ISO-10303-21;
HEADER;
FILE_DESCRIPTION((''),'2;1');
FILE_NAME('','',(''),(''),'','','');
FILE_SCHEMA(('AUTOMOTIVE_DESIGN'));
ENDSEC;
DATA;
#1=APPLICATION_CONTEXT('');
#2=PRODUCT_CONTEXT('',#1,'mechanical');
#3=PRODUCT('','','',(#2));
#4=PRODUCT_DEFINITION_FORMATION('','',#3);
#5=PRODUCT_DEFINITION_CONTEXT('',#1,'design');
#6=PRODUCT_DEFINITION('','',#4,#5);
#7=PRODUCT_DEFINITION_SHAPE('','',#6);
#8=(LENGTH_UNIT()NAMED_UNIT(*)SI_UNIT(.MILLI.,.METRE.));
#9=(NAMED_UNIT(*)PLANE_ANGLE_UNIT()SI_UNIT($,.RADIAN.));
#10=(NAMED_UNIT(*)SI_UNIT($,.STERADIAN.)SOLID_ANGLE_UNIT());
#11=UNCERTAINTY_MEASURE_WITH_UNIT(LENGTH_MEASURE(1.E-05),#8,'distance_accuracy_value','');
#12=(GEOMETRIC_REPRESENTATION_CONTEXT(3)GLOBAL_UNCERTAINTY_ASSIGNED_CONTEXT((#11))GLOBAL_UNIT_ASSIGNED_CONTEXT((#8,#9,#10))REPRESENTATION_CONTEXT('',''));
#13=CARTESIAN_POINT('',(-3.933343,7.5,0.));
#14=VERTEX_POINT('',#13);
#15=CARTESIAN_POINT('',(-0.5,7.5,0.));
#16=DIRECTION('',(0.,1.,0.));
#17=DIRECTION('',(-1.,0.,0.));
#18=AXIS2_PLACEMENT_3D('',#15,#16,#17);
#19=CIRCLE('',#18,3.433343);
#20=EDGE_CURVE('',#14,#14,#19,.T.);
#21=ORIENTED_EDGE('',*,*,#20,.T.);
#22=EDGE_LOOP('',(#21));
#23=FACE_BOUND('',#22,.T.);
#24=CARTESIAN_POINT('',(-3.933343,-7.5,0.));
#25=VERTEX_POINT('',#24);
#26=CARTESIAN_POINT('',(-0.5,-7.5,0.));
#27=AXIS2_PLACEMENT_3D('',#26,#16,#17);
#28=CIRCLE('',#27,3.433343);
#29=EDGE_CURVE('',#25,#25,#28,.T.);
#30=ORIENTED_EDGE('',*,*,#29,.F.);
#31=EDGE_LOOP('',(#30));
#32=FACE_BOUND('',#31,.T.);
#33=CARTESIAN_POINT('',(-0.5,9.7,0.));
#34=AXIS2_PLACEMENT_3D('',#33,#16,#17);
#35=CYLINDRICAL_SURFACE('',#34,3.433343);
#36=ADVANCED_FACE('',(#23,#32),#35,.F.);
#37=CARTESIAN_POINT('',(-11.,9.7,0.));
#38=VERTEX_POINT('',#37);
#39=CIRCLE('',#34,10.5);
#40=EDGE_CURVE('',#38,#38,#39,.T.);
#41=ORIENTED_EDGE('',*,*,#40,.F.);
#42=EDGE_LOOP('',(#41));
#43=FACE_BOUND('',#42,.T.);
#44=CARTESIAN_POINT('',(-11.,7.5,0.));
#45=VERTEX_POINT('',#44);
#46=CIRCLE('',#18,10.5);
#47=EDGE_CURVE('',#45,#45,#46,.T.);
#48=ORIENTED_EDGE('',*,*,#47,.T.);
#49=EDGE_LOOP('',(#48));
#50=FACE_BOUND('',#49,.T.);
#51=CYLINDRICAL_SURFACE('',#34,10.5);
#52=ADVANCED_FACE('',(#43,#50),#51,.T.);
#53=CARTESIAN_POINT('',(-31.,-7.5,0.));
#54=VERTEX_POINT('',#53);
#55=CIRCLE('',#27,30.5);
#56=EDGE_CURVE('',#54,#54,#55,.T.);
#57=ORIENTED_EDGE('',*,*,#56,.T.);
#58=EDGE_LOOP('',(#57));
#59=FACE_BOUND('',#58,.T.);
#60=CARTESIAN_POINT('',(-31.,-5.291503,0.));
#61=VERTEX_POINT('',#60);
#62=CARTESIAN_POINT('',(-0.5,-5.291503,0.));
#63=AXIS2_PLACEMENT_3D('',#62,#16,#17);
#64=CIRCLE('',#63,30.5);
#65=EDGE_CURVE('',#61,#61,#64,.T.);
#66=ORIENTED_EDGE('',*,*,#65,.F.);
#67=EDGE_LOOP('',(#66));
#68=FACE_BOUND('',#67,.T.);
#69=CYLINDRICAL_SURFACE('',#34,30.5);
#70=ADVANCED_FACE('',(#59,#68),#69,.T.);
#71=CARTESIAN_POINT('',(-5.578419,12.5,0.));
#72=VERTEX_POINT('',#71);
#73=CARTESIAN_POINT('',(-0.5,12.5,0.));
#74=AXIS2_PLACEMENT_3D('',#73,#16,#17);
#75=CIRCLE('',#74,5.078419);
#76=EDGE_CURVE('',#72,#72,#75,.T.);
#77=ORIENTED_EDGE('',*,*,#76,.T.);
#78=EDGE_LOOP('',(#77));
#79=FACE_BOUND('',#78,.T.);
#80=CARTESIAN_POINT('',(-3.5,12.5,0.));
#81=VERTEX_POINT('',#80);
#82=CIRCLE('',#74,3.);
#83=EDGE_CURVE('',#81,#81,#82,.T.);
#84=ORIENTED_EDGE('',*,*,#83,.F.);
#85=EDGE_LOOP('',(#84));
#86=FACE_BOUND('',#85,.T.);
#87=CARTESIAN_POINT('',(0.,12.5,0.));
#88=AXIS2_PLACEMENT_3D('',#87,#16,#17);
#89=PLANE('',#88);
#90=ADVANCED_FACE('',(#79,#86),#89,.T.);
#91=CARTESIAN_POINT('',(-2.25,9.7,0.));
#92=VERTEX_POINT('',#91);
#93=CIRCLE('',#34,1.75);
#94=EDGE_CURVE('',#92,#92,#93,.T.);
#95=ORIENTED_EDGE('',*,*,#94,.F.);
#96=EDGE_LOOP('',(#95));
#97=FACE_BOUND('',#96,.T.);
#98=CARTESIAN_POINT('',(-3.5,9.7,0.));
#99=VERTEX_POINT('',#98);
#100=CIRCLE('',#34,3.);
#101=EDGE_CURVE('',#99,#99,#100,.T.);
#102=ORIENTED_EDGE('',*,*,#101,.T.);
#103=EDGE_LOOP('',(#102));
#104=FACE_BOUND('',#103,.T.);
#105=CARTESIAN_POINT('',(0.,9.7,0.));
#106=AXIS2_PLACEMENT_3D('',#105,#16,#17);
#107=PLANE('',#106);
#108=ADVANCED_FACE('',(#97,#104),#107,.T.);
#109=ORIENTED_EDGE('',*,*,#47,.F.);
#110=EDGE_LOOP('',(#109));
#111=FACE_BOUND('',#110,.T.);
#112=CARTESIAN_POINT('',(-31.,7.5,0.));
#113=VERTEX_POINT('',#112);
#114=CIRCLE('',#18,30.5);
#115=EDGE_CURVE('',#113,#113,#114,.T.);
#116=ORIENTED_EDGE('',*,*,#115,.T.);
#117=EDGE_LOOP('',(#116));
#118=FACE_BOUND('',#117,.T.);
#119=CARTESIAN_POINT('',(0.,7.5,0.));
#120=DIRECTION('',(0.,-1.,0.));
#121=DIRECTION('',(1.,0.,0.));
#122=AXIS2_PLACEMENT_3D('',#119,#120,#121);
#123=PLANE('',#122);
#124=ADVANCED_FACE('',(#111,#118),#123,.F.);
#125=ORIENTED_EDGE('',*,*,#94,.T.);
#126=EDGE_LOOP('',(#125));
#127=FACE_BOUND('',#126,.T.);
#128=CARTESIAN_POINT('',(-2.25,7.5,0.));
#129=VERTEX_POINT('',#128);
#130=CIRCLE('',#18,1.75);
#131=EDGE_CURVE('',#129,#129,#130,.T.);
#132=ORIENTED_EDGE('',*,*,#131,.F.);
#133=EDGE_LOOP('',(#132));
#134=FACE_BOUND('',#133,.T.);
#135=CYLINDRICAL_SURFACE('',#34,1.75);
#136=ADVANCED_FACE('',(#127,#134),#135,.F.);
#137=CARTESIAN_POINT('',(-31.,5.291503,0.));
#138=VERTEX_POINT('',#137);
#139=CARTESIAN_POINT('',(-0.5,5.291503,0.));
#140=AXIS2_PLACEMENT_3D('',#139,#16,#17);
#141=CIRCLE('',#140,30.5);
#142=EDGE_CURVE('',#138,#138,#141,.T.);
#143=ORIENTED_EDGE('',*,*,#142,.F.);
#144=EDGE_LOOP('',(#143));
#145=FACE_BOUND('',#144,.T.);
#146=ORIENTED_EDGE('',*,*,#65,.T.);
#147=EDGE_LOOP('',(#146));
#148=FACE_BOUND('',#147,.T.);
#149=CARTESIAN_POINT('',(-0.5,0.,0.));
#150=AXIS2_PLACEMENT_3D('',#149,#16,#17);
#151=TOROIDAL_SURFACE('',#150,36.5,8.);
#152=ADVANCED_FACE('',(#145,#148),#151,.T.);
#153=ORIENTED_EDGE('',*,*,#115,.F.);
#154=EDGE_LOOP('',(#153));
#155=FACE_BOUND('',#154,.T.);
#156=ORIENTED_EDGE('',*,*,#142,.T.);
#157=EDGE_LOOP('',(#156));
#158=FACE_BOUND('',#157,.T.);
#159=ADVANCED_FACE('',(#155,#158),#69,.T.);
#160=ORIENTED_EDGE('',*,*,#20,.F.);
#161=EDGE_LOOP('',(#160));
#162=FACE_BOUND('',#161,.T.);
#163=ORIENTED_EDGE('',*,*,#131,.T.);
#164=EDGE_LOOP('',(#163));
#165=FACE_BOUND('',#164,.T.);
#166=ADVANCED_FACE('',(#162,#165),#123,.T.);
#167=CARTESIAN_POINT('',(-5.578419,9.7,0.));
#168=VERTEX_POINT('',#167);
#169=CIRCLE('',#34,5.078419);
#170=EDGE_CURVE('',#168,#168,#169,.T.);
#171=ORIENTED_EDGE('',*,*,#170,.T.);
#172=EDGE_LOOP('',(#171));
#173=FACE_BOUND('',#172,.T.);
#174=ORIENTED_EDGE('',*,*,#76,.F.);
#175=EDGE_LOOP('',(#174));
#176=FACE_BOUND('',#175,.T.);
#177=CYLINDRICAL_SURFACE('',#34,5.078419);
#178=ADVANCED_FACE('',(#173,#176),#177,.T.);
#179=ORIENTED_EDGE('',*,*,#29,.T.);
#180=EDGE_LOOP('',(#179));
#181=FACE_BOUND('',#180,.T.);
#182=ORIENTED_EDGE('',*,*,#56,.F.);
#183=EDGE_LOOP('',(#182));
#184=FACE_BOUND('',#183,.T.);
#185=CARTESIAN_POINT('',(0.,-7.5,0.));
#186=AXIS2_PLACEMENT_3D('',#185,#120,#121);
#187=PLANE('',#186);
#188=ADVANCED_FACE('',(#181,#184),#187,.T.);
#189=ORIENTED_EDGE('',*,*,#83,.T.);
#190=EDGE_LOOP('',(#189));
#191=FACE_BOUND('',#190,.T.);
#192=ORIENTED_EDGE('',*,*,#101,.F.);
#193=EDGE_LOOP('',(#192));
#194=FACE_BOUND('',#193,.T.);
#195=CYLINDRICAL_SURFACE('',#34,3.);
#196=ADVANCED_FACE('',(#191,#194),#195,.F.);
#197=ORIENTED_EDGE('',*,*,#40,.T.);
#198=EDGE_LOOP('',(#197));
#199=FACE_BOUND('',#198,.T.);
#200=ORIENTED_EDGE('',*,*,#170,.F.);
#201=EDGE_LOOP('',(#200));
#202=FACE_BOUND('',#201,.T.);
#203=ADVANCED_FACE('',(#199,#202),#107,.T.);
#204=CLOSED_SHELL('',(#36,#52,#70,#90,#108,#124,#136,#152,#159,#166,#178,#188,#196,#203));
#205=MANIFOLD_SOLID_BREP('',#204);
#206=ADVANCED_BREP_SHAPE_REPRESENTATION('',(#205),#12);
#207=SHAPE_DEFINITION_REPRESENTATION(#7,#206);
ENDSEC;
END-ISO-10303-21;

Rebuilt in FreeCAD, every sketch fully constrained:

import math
import FreeCAD as App
import Part
import Sketcher

V = App.Vector

doc = App.newDocument("Part")
body = doc.addObject("PartDesign::Body", "Body")

sketch1 = doc.addObject("Sketcher::SketchObject", "Sketch")
body.addObject(sketch1)
sketch1.AttachmentSupport = (doc.XY_Plane, [""])
sketch1.MapMode = "FlatFace"
sketch1.addGeometry([
    Part.LineSegment(V(30, -7.5, 0), V(30, -5.3, 0)),
    Part.ArcOfCircle(Part.Circle(V(36, 0, 0), V(0, 0, 1), 8), math.radians(-139), math.radians(139)),
    Part.LineSegment(V(30, 5.3, 0), V(30, 7.5, 0)),
    Part.LineSegment(V(30, 7.5, 0), V(10, 7.5, 0)),
    Part.LineSegment(V(10, 7.5, 0), V(10, 9.7, 0)),
    Part.LineSegment(V(10, 9.7, 0), V(4.6, 9.7, 0)),
    Part.LineSegment(V(4.6, 9.7, 0), V(4.6, 12.5, 0)),
    Part.LineSegment(V(4.6, 12.5, 0), V(2.5, 12.5, 0)),
    Part.LineSegment(V(2.5, 12.5, 0), V(2.5, 9.7, 0)),
    Part.LineSegment(V(2.5, 9.7, 0), V(1.2, 9.7, 0)),
    Part.LineSegment(V(1.2, 9.7, 0), V(1.2, 7.5, 0)),
    Part.LineSegment(V(1.2, 7.5, 0), V(2.9, 7.5, 0)),
    Part.LineSegment(V(2.9, 7.5, 0), V(2.9, -7.5, 0)),
    Part.LineSegment(V(2.9, -7.5, 0), V(30, -7.5, 0)),
], False)
sketch1.addGeometry(Part.LineSegment(V(-0.5, 12.5, 0), V(-0.5, -7.5, 0)), True)
sketch1.addConstraint([
    Sketcher.Constraint("Coincident", 0, 2, 1, 1),
    Sketcher.Constraint("Coincident", 1, 2, 2, 1),
    Sketcher.Constraint("Coincident", 2, 2, 3, 1),
    Sketcher.Constraint("Coincident", 3, 2, 4, 1),
    Sketcher.Constraint("Coincident", 4, 2, 5, 1),
    Sketcher.Constraint("Coincident", 5, 2, 6, 1),
    Sketcher.Constraint("Coincident", 6, 2, 7, 1),
    Sketcher.Constraint("Coincident", 7, 2, 8, 1),
    Sketcher.Constraint("Coincident", 8, 2, 9, 1),
    Sketcher.Constraint("Coincident", 9, 2, 10, 1),
    Sketcher.Constraint("Coincident", 10, 2, 11, 1),
    Sketcher.Constraint("Coincident", 11, 2, 12, 1),
    Sketcher.Constraint("Coincident", 12, 2, 13, 1),
    Sketcher.Constraint("Coincident", 13, 2, 0, 1),
    Sketcher.Constraint("Vertical", 0),
    Sketcher.Constraint("Vertical", 2),
    Sketcher.Constraint("Horizontal", 3),
    Sketcher.Constraint("Vertical", 4),
    Sketcher.Constraint("Horizontal", 5),
    Sketcher.Constraint("Vertical", 6),
    Sketcher.Constraint("Horizontal", 7),
    Sketcher.Constraint("Vertical", 8),
    Sketcher.Constraint("Horizontal", 9),
    Sketcher.Constraint("Vertical", 10),
    Sketcher.Constraint("Horizontal", 11),
    Sketcher.Constraint("Vertical", 12),
    Sketcher.Constraint("Horizontal", 13),
    Sketcher.Constraint("Vertical", 14),
    Sketcher.Constraint("Symmetric", 0, 2, 1, 2, -1),
    Sketcher.Constraint("Horizontal", 5, 2, 8, 2),
    Sketcher.Constraint("Horizontal", 3, 2, 10, 2),
    Sketcher.Constraint("Horizontal", 7, 2, 14, 1),
    Sketcher.Constraint("Horizontal", 13, 2, 14, 2),
    Sketcher.Constraint("Equal", 0, 2),
    Sketcher.Constraint("Equal", 3, 14),
    Sketcher.Constraint("Radius", 1, 8.0),
    Sketcher.Constraint("DistanceX", 3, 2, 3, 1, 20.0),
    Sketcher.Constraint("DistanceY", 12, 2, 12, 1, 15.0),
    Sketcher.Constraint("DistanceY", 4, 1, 4, 2, 2.2),
    Sketcher.Constraint("DistanceX", -1, 1, 1, 3, 36.0),
    Sketcher.Constraint("DistanceX", -1, 1, 0, 2, 30.0),
    Sketcher.Constraint("DistanceX", 14, 1, 7, 2, 3.0),
    Sketcher.Constraint("DistanceX", 9, 2, 9, 1, 1.25),
    Sketcher.Constraint("DistanceX", -1, 1, 7, 2, 2.5),
    Sketcher.Constraint("DistanceX", 5, 2, 5, 1, 5.421581),
    Sketcher.Constraint("DistanceX", 11, 1, 11, 2, 1.683343),
])
revolution = doc.addObject("PartDesign::Revolution", "Revolution")
body.addObject(revolution)
revolution.Profile = sketch1
revolution.ReferenceAxis = (sketch1, ["Axis0"])
revolution.Angle = 360

doc.recompute()
